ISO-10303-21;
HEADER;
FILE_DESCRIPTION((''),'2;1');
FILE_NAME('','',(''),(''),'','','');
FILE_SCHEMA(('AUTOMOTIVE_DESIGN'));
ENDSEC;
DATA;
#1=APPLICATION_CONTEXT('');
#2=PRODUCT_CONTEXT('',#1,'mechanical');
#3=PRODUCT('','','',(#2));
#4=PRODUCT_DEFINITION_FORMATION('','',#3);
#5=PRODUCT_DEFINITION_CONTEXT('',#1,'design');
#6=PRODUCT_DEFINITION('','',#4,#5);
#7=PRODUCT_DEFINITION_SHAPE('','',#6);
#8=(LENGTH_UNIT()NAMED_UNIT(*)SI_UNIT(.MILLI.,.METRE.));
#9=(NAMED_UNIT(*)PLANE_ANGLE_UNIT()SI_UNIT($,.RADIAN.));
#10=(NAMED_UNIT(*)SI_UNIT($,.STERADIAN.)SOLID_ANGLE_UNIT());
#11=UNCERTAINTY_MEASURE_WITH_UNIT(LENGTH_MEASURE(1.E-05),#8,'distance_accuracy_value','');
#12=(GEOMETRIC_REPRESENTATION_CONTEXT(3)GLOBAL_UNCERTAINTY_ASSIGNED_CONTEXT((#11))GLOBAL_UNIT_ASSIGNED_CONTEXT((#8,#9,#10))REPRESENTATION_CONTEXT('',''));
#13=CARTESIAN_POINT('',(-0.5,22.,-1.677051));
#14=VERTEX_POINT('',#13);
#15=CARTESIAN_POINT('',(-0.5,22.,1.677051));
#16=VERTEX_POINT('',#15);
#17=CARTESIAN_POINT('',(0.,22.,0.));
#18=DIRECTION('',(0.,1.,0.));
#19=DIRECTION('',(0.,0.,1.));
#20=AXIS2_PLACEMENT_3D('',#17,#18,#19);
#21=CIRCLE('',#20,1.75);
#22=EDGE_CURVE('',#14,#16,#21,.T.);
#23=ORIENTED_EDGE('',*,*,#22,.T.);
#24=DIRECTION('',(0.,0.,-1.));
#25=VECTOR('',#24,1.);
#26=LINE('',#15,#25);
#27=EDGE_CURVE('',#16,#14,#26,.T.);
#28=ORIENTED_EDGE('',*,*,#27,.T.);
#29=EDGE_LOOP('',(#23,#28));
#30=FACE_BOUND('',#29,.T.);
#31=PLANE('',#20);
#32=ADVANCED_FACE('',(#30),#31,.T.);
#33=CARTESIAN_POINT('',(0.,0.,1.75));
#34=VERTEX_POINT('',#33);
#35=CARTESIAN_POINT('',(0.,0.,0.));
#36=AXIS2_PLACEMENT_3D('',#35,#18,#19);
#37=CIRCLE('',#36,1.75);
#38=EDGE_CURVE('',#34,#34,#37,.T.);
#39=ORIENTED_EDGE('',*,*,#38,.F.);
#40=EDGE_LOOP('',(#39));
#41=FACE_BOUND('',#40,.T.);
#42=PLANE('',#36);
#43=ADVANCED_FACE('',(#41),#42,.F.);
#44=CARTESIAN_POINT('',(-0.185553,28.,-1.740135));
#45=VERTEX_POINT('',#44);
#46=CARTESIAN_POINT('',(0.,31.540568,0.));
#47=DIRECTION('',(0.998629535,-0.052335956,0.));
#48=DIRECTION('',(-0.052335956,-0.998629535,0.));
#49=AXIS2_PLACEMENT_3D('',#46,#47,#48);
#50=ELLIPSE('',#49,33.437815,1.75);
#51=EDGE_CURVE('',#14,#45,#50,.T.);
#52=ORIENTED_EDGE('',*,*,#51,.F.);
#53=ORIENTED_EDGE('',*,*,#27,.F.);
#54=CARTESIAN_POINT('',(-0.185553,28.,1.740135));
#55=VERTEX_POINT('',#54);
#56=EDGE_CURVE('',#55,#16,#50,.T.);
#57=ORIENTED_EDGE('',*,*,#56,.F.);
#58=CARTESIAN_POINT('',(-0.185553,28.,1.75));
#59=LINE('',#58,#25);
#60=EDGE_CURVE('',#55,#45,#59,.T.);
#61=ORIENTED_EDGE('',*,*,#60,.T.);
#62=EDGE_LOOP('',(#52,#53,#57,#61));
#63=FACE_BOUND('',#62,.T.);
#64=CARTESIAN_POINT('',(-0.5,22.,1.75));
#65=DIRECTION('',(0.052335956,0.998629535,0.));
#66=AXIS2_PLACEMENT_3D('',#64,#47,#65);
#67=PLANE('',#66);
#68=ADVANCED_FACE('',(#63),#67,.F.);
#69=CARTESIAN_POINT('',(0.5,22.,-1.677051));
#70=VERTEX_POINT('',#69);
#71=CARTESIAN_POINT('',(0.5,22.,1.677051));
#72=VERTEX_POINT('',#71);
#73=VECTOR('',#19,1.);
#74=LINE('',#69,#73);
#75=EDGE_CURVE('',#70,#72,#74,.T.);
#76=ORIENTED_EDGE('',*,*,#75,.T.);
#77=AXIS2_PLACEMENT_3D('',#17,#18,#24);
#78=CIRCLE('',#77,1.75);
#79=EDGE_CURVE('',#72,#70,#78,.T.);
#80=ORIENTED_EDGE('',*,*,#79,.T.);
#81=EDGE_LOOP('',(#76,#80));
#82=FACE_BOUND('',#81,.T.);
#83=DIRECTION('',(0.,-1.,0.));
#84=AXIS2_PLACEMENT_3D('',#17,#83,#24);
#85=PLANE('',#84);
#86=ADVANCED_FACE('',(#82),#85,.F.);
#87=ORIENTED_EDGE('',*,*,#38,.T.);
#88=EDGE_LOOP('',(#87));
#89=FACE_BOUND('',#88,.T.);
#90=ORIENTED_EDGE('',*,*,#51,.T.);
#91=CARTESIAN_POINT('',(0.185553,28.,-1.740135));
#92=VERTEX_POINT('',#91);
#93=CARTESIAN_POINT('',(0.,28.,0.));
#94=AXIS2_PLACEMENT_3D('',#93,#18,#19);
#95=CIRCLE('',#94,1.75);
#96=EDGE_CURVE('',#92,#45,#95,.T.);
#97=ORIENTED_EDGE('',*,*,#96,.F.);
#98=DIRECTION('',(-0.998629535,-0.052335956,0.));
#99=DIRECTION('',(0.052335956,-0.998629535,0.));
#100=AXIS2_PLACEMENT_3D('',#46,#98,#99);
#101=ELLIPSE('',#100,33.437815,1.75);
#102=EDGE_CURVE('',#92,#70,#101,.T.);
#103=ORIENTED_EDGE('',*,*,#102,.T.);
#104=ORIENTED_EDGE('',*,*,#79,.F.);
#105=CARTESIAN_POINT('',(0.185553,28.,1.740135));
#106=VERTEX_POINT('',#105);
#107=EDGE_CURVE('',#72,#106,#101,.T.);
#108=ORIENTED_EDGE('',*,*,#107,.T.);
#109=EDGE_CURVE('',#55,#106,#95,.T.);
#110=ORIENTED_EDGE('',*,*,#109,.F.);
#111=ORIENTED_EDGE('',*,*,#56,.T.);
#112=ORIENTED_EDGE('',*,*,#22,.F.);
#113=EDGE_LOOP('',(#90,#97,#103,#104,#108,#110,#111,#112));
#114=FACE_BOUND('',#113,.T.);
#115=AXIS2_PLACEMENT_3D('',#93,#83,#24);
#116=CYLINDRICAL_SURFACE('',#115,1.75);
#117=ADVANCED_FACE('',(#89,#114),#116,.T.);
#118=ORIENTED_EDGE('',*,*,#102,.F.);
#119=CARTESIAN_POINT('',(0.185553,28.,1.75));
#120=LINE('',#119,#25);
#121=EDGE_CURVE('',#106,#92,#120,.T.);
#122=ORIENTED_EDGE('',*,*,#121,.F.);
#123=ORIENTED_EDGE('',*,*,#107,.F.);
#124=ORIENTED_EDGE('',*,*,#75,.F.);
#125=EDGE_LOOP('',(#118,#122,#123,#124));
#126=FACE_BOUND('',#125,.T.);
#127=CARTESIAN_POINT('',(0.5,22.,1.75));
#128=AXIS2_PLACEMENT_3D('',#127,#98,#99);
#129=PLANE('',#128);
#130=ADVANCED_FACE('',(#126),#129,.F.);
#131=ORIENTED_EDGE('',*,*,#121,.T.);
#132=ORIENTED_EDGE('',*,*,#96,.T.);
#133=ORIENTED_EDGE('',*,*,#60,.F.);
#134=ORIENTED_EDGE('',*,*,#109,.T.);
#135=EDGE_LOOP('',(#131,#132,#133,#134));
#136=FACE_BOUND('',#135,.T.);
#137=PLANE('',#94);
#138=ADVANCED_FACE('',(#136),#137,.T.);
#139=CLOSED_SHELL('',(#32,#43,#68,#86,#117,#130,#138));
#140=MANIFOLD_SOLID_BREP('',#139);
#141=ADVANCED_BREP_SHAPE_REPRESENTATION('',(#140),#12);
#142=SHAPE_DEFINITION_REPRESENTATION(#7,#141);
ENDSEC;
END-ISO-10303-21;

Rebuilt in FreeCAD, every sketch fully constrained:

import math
import FreeCAD as App
import Part
import Sketcher
from FreeCAD import Vector
Q = App.Units.Quantity


def add_polygon(sketch, points):
    """Adds a closed chain of lines whose ends are joined by coincident constraints."""
    first, n = sketch.GeometryCount, len(points)
    for a, b in zip(points, points[1:] + points[:1]):
        sketch.addGeometry(Part.LineSegment(App.Vector(*a, 0), App.Vector(*b, 0)), False)
    for i in range(n):
        sketch.addConstraint(Sketcher.Constraint("Coincident", first + i, 2, first + (i + 1) % n, 1))

doc = App.newDocument("Part")
body = doc.addObject("PartDesign::Body", "Body")

# Sketch on XZ plane
sketch1 = doc.addObject("Sketcher::SketchObject", "Sketch")
body.addObject(sketch1)
sketch1.AttachmentSupport = (doc.XZ_Plane, [""])
sketch1.MapMode = "FlatFace"
sketch1.addGeometry(Part.Circle(Vector(0, 0, 0), Vector(0, 0, 1), 1.8), False)
sketch1.addConstraint([
    Sketcher.Constraint("Coincident", 0, 3, -1, 1),
    Sketcher.Constraint("Diameter", 0, Q("3.5 mm")),
])
pad1 = doc.addObject("PartDesign::Pad", "Pad")
body.addObject(pad1)
pad1.Profile = sketch1
pad1.Length = 28
pad1.Reversed = True

# Sketch on XZ plane
sketch2 = doc.addObject("Sketcher::SketchObject", "Sketch001")
body.addObject(sketch2)
sketch2.AttachmentSupport = (doc.XZ_Plane, [""])
sketch2.MapMode = "FlatFace"
sketch2.AttachmentOffset = App.Placement(Vector(0, 0, -22), App.Rotation())
sketch2.addGeometry([
    Part.LineSegment(Vector(0.5, -1.7, 0), Vector(0.5, 1.7, 0)),
    Part.ArcOfCircle(Part.Circle(Vector(0, 0, 0), Vector(0, 0, 1), 1.8), math.radians(-73), math.radians(73)),
    Part.LineSegment(Vector(-0.5, 1.7, 0), Vector(-0.5, -1.7, 0)),
    Part.ArcOfCircle(Part.Circle(Vector(0, 0, 0), Vector(0, 0, 1), 1.8), math.radians(107), math.radians(253)),
], False)
sketch2.addConstraint([
    Sketcher.Constraint("Coincident", 0, 1, 1, 1),
    Sketcher.Constraint("Coincident", 1, 2, 0, 2),
    Sketcher.Constraint("Coincident", 2, 1, 3, 1),
    Sketcher.Constraint("Coincident", 3, 2, 2, 2),
    Sketcher.Constraint("Vertical", 0),
    Sketcher.Constraint("Vertical", 2),
    Sketcher.Constraint("Coincident", 1, 3, -1, 1),
    Sketcher.Constraint("Coincident", 3, 3, -1, 1),
    Sketcher.Constraint("Equal", 1, 3),
    Sketcher.Constraint("Horizontal", 1, 2, 2, 1),
    Sketcher.Constraint("Radius", 1, Q("1.75 mm")),
    Sketcher.Constraint("DistanceX", 2, 1, 1, 2, Q("1 mm")),
])
pocket1 = doc.addObject("PartDesign::Pocket", "Pocket")
body.addObject(pocket1)
pocket1.Profile = sketch2
pocket1.Length = 6

# Sketch on XY plane
sketch3 = doc.addObject("Sketcher::SketchObject", "Sketch002")
body.addObject(sketch3)
sketch3.AttachmentSupport = (doc.XY_Plane, [""])
sketch3.MapMode = "FlatFace"
sketch3.AttachmentOffset = App.Placement(Vector(0, 0, 1.677051), App.Rotation())
add_polygon(sketch3, [(-0.5, 22), (-0.5, 28), (-0.19, 28)])  # lines 0-2
add_polygon(sketch3, [(0.5, 28), (0.5, 22), (0.19, 28)])  # lines 3-5
sketch3.addConstraint([
    Sketcher.Constraint("Vertical", 0),
    Sketcher.Constraint("Horizontal", 1),
    Sketcher.Constraint("Vertical", 3),
    Sketcher.Constraint("Horizontal", 5),
    Sketcher.Constraint("Symmetric", 2, 2, 3, 2, -2),
    Sketcher.Constraint("Symmetric", 1, 2, 4, 2, -2),
    Sketcher.Constraint("DistanceY", 0, 1, 0, 2, Q("6 mm")),
    Sketcher.Constraint("Angle", 2, Q("-93 deg")),
    Sketcher.Constraint("DistanceY", -1, 1, 0, 2, Q("28 mm")),
    Sketcher.Constraint("DistanceX", 2, 2, 3, 2, Q("1 mm")),
])
pocket2 = doc.addObject("PartDesign::Pocket", "Pocket001")
body.addObject(pocket2)
pocket2.Profile = sketch3
pocket2.Type = "ThroughAll"
pocket2.Midplane = True

doc.recompute()
